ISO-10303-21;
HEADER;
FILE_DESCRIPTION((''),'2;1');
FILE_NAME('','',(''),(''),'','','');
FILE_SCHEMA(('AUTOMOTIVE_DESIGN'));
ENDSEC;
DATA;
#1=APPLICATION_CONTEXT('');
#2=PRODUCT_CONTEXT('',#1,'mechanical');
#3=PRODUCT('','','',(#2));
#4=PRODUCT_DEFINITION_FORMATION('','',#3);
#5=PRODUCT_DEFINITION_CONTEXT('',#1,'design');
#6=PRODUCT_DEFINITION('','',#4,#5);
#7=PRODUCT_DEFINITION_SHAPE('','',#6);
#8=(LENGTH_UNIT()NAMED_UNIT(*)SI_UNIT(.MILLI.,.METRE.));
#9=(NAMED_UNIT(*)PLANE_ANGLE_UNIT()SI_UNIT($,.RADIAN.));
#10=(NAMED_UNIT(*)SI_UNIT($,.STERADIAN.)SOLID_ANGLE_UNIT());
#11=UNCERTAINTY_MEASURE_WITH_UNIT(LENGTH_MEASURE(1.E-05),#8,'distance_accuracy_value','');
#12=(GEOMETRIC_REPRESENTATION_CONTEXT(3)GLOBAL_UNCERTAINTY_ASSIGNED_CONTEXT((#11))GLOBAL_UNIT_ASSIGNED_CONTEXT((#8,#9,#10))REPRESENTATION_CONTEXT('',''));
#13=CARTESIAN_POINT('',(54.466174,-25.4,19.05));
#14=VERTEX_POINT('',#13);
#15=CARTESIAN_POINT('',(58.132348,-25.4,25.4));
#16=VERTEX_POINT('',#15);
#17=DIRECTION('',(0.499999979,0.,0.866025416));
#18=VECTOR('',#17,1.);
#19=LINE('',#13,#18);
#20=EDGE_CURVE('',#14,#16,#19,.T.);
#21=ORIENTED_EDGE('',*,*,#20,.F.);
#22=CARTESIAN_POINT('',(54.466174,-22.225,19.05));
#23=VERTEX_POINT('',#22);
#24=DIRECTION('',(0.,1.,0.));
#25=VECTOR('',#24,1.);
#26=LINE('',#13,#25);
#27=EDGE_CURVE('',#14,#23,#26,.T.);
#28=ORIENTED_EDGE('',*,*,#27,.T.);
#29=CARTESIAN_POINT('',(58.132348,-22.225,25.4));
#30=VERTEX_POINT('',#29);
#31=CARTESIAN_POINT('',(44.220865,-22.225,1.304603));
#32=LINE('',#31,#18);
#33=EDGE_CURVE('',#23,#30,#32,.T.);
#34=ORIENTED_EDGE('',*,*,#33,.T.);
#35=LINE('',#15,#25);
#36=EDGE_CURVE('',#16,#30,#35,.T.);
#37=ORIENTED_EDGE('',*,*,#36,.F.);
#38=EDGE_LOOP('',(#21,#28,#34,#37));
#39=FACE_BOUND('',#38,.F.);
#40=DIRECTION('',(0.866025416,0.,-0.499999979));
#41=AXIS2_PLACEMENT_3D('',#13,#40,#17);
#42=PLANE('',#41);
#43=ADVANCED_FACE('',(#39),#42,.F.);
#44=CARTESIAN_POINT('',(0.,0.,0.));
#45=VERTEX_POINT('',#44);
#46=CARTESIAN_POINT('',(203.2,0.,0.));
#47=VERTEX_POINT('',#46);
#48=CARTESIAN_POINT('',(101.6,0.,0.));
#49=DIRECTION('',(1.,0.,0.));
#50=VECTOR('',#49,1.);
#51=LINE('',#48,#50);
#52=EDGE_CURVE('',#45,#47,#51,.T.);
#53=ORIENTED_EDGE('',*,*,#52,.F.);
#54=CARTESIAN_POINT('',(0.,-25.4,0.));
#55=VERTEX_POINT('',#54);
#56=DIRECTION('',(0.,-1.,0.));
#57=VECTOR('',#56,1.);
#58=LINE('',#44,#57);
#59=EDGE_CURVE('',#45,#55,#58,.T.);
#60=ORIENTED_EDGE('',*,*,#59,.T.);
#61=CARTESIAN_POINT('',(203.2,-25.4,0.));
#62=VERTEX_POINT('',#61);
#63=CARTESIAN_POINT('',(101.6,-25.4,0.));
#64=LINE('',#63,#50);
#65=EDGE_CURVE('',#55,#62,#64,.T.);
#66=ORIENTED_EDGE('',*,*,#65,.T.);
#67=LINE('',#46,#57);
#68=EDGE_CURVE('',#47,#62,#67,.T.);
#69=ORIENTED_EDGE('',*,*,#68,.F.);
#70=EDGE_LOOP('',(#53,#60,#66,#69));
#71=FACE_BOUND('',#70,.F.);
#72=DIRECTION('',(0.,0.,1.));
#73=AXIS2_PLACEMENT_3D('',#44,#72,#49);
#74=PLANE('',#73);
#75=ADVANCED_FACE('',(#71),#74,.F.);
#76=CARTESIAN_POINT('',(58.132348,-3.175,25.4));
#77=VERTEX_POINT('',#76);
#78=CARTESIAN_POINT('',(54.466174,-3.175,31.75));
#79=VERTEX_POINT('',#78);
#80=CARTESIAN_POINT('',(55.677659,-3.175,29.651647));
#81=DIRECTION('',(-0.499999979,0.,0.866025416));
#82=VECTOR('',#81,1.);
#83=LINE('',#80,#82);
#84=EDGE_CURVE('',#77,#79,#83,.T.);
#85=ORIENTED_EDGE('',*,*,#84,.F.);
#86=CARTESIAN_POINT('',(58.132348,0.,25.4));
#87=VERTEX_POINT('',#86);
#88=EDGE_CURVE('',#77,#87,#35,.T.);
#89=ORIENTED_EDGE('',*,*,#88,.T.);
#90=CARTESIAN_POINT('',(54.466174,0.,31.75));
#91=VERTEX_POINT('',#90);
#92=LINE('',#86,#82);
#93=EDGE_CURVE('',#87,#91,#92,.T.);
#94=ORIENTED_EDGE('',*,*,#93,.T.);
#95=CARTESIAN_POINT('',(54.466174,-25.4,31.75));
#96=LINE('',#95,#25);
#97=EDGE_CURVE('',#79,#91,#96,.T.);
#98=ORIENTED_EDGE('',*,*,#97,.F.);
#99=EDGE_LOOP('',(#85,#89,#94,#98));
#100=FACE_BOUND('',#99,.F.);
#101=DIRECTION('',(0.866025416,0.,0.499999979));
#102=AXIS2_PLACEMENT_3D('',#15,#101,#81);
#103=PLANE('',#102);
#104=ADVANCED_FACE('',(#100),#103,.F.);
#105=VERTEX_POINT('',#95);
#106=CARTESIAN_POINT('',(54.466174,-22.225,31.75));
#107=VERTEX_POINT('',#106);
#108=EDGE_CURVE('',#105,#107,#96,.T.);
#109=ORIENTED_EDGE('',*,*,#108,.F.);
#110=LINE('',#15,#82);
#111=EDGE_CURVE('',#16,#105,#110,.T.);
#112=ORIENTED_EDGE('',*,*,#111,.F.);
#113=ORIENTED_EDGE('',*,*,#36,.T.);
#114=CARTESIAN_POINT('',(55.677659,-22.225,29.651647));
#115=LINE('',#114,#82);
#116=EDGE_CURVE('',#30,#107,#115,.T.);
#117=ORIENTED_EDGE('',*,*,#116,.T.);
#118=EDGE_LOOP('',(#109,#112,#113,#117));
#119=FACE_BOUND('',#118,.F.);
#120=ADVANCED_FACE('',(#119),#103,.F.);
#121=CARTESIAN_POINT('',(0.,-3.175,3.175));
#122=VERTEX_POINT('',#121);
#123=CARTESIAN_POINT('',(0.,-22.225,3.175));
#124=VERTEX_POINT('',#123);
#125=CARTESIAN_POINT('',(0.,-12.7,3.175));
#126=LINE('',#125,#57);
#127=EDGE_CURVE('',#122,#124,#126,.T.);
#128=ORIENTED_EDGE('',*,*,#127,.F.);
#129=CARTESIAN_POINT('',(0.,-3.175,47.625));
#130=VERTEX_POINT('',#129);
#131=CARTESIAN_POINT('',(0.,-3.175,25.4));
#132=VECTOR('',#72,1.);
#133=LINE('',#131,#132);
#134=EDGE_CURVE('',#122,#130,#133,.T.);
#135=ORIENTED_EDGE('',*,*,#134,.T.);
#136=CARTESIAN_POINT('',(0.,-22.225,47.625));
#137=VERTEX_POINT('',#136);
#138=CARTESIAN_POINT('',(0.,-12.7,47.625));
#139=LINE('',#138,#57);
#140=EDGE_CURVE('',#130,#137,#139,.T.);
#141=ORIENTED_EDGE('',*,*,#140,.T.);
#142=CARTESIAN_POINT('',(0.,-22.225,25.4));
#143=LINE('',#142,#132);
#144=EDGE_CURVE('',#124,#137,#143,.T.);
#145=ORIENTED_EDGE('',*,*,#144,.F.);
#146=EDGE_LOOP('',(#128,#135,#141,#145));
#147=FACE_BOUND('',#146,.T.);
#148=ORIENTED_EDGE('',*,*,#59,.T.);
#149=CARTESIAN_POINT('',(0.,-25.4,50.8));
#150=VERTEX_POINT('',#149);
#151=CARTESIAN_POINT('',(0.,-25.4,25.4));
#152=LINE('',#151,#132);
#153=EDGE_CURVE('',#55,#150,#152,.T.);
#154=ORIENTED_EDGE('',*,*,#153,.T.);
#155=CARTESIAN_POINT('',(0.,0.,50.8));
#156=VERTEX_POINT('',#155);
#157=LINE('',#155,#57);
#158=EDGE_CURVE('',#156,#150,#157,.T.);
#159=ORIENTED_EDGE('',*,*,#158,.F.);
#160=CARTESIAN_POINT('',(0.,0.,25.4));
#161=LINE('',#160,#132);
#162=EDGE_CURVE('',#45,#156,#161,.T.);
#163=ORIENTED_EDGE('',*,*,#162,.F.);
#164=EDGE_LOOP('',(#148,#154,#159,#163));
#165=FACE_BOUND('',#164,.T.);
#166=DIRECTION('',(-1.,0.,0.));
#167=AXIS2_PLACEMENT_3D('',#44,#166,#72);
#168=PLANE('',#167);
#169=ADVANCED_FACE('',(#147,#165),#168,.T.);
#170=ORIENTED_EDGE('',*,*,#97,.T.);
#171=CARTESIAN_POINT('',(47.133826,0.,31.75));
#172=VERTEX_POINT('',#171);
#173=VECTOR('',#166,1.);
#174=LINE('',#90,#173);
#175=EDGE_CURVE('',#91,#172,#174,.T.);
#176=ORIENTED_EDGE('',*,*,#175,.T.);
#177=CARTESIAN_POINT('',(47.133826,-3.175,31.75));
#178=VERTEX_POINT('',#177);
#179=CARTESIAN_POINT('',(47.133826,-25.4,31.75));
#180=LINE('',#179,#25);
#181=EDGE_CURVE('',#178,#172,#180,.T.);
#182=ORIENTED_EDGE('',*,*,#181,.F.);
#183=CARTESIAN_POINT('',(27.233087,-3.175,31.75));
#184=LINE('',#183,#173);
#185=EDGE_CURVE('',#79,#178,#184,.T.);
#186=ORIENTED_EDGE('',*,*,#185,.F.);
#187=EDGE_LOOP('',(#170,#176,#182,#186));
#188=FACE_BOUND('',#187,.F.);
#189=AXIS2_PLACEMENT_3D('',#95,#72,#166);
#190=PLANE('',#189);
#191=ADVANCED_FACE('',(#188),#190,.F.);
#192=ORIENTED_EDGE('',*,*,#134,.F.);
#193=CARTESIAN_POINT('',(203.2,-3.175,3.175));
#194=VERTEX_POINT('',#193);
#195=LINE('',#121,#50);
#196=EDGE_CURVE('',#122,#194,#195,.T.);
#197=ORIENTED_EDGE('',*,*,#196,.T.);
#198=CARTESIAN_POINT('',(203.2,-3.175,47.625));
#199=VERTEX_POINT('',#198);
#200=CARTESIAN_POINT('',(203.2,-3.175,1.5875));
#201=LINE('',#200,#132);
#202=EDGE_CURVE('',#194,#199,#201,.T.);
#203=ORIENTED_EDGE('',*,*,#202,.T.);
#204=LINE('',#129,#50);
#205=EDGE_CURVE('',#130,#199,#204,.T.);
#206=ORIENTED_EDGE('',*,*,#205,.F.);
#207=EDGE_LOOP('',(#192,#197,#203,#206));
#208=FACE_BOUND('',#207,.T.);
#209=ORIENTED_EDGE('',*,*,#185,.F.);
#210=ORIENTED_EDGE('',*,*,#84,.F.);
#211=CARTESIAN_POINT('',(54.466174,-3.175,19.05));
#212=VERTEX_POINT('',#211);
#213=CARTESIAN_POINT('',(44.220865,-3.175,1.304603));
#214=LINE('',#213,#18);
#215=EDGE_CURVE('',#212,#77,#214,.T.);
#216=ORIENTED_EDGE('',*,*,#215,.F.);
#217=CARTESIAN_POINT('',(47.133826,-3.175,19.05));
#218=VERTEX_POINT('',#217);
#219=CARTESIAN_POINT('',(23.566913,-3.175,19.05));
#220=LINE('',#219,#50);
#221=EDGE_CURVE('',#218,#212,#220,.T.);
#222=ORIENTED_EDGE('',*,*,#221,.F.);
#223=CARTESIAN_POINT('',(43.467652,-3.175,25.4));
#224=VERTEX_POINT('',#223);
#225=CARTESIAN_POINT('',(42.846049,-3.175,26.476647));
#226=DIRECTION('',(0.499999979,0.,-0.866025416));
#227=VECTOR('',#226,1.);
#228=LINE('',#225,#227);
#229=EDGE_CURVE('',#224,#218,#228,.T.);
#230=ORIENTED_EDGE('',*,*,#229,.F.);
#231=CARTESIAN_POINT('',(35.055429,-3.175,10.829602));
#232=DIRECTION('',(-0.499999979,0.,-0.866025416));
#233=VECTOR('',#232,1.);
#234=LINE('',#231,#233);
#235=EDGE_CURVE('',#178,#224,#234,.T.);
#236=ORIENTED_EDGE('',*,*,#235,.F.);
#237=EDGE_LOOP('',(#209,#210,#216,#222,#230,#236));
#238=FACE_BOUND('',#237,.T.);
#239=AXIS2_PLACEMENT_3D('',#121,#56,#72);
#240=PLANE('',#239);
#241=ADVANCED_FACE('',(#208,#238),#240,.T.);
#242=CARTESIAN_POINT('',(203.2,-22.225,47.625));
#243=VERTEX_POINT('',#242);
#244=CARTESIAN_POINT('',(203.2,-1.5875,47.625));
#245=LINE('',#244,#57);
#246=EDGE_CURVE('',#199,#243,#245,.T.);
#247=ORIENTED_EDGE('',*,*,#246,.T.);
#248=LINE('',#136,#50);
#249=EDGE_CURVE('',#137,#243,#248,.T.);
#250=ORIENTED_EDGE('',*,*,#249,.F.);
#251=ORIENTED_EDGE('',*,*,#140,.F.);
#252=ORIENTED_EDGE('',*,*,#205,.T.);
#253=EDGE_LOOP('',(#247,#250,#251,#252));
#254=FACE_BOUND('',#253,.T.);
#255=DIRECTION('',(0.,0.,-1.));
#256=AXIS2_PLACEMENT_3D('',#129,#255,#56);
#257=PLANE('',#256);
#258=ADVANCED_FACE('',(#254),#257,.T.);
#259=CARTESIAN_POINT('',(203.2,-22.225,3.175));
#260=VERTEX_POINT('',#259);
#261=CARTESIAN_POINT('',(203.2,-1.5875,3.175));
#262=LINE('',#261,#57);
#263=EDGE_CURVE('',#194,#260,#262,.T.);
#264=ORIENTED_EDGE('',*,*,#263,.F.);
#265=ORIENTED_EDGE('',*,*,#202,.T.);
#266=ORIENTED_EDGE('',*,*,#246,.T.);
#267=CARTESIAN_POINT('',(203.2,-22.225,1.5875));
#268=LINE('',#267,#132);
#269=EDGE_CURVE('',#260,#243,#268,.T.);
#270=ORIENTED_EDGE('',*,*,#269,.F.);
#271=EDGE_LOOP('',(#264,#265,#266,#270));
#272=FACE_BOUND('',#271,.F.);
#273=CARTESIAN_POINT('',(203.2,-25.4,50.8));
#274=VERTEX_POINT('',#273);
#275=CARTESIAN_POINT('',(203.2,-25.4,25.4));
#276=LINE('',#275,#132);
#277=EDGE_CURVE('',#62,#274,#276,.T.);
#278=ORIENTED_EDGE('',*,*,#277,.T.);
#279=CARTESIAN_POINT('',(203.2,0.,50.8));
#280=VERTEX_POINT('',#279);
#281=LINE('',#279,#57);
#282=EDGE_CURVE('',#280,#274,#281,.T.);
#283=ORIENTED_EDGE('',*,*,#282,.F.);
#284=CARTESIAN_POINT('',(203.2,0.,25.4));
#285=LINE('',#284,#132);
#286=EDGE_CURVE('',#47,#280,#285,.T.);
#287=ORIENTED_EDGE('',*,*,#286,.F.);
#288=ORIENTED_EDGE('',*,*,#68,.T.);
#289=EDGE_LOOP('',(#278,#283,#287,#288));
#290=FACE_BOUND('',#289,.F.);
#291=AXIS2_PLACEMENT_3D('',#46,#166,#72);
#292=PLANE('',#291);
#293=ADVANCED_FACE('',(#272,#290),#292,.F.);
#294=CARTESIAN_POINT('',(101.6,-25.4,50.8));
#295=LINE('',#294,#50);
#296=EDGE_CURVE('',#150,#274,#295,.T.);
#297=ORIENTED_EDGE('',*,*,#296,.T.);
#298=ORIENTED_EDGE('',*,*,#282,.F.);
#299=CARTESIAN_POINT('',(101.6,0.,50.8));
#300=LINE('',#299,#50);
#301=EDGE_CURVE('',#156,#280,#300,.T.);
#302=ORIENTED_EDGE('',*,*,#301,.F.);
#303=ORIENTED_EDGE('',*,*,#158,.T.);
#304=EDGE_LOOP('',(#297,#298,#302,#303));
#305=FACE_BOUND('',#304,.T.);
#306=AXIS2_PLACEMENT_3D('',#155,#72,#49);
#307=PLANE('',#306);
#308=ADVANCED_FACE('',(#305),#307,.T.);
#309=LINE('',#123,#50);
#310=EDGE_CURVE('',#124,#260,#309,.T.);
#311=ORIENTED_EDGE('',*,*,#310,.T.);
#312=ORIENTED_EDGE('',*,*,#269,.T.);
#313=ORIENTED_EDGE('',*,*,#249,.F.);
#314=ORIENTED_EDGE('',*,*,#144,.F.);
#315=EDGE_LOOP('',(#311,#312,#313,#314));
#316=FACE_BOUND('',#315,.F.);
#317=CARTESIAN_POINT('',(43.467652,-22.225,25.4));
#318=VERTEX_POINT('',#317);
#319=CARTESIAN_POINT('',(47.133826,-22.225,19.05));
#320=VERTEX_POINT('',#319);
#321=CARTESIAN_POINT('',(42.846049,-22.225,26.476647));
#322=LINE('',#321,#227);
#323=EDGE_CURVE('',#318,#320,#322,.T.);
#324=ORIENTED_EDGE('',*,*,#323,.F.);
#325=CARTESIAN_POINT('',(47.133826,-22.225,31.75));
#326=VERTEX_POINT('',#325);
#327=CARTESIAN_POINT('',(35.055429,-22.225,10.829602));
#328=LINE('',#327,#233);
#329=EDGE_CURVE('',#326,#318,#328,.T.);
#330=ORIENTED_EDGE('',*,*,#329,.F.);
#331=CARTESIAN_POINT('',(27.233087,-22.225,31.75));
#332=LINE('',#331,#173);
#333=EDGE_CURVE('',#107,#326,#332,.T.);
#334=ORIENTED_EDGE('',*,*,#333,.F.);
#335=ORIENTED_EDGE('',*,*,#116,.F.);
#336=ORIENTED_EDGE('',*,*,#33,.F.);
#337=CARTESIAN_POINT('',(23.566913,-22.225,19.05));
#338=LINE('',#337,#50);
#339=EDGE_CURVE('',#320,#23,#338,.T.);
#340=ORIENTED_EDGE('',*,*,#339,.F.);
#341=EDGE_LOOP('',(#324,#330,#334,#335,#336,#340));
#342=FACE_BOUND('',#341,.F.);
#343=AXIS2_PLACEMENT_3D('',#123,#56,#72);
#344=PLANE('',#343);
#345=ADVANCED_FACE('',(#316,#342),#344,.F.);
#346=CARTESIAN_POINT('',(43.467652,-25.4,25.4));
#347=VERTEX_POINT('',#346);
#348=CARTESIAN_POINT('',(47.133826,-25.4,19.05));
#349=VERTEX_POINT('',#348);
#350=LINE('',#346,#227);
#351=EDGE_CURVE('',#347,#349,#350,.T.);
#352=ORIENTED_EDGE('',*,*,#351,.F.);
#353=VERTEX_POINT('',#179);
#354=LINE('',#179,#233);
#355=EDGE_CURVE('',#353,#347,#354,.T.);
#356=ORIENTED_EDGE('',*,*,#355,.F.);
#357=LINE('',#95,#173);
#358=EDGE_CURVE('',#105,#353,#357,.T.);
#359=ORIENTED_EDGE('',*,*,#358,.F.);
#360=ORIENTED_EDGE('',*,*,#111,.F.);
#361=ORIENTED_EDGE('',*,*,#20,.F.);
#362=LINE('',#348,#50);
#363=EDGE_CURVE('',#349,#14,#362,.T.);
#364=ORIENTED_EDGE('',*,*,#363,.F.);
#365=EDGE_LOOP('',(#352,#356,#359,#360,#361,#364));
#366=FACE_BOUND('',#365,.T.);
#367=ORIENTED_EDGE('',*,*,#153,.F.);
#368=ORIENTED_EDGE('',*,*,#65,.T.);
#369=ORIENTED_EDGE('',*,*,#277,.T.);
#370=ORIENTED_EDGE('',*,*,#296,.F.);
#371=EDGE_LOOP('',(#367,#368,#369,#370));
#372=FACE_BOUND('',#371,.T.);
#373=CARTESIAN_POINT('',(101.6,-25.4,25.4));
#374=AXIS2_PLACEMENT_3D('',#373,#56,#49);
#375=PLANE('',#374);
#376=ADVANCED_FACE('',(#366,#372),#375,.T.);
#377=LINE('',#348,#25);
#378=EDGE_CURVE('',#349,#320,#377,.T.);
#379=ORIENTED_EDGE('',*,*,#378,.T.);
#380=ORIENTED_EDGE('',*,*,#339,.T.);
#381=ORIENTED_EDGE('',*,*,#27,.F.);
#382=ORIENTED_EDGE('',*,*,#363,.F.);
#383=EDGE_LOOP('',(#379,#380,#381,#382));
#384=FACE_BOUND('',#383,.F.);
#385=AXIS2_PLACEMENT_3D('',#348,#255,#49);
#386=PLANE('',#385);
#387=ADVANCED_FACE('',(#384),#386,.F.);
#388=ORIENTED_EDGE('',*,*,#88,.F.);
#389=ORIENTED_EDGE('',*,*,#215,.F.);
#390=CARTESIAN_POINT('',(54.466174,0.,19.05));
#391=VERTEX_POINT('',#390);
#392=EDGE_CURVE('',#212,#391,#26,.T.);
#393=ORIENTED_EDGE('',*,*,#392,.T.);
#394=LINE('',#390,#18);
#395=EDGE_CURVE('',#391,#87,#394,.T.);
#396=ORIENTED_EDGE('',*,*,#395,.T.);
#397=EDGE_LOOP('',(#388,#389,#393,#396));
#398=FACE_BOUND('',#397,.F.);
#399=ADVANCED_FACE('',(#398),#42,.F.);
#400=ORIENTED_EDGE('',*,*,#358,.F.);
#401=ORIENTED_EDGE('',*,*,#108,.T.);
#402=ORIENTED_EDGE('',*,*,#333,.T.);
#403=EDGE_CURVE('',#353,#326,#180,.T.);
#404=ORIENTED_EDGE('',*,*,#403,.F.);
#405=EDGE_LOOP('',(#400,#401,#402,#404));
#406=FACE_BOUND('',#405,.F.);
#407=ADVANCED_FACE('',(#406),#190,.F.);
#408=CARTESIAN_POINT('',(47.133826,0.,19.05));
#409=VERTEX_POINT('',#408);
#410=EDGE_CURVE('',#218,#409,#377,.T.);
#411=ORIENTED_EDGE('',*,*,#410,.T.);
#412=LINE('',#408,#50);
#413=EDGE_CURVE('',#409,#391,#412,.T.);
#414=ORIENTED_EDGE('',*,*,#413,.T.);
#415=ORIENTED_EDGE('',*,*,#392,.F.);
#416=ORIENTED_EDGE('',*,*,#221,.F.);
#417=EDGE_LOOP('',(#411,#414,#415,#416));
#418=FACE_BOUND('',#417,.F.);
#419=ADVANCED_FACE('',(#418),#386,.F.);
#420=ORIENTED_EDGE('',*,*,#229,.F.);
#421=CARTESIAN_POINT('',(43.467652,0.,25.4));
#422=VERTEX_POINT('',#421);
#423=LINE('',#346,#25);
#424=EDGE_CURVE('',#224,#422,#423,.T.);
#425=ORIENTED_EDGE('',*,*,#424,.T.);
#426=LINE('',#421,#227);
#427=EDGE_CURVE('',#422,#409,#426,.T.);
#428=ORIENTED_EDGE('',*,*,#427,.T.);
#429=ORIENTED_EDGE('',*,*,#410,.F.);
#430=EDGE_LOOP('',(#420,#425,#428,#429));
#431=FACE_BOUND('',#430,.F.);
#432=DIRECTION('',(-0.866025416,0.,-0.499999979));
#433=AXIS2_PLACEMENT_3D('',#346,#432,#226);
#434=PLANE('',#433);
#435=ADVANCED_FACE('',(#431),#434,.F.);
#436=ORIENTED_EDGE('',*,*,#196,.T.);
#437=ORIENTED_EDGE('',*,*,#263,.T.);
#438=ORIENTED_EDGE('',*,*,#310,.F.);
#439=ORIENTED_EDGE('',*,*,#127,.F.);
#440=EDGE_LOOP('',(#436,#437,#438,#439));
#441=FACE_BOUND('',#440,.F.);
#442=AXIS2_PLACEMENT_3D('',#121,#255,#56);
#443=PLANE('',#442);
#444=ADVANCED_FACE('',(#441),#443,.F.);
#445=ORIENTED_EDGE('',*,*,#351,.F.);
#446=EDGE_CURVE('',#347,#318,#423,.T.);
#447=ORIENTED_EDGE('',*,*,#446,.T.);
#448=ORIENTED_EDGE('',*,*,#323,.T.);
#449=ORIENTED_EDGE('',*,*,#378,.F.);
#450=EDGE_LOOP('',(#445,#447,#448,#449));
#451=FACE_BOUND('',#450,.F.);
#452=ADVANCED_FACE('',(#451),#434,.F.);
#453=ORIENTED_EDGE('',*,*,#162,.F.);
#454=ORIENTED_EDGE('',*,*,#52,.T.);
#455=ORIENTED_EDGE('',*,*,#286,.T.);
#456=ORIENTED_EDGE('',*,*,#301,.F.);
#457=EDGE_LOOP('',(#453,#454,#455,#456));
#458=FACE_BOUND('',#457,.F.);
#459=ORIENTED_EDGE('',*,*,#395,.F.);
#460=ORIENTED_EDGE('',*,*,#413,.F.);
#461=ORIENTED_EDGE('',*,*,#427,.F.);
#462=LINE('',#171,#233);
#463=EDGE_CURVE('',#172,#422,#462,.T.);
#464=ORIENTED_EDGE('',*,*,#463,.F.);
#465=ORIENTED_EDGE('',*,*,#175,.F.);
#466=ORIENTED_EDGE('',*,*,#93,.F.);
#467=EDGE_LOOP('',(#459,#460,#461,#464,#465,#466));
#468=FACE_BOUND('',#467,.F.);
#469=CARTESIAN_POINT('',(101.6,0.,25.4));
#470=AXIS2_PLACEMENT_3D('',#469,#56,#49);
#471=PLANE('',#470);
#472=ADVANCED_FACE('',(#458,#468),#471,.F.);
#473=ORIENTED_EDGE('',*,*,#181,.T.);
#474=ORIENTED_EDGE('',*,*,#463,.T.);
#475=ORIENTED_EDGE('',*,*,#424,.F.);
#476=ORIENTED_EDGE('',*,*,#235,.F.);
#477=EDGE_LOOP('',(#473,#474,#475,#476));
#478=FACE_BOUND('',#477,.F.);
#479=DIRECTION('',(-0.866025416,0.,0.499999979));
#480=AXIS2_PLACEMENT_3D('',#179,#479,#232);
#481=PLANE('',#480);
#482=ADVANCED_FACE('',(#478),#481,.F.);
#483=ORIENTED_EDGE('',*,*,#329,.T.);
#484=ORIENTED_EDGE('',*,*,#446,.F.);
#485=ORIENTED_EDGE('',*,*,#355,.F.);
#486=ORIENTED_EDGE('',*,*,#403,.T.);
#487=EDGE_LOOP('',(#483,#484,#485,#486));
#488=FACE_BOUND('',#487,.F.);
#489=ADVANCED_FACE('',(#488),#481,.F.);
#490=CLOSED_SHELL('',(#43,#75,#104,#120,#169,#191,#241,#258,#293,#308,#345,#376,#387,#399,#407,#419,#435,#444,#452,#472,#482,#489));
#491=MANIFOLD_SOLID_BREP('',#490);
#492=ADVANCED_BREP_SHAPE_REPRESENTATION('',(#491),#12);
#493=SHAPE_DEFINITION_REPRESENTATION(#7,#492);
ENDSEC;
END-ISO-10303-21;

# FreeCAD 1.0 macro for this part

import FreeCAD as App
import Part
import Sketcher
Q = App.Units.Quantity


def add_polygon(sketch, points):
    """Adds a closed chain of lines whose ends are joined by coincident constraints."""
    first, n = sketch.GeometryCount, len(points)
    for a, b in zip(points, points[1:] + points[:1]):
        sketch.addGeometry(Part.LineSegment(App.Vector(*a, 0), App.Vector(*b, 0)), False)
    for i in range(n):
        sketch.addConstraint(Sketcher.Constraint("Coincident", first + i, 2, first + (i + 1) % n, 1))

doc = App.newDocument("Part")
body = doc.addObject("PartDesign::Body", "Body")

# Sketch on XZ plane
sketch1 = body.newObject("Sketcher::SketchObject", "Sketch")
sketch1.AttachmentSupport = (doc.getObject("XZ_Plane"), [""])
sketch1.MapMode = "FlatFace"
add_polygon(sketch1, [(0, 51), (0, 0), (203, 0), (203, 51)])  # lines 0-3
sketch1.addConstraint([
    Sketcher.Constraint("Vertical", 0),
    Sketcher.Constraint("Horizontal", 1),
    Sketcher.Constraint("Vertical", 2),
    Sketcher.Constraint("Horizontal", 3),
    Sketcher.Constraint("Coincident", 0, 2, -1, 1),
    Sketcher.Constraint("DistanceX", 1, 1, 1, 2, Q("8 in")),
    Sketcher.Constraint("DistanceY", 0, 2, 0, 1, Q("2 in")),
])
pad1 = body.newObject("PartDesign::Pad", "Pad")
pad1.Profile = sketch1
pad1.Length = Q("1 in")

# Sketch on YZ plane
sketch2 = body.newObject("Sketcher::SketchObject", "Sketch001")
sketch2.AttachmentSupport = (doc.getObject("YZ_Plane"), [""])
sketch2.MapMode = "FlatFace"
add_polygon(sketch2, [(-3, 48), (-3, 3), (-22, 3), (-22, 48)])  # lines 0-3
sketch2.addConstraint([
    Sketcher.Constraint("Vertical", 0),
    Sketcher.Constraint("Horizontal", 1),
    Sketcher.Constraint("Vertical", 2),
    Sketcher.Constraint("Horizontal", 3),
    Sketcher.Constraint("DistanceX", 1, 2, 1, 1, Q("0.75 in")),
    Sketcher.Constraint("DistanceY", 0, 2, 0, 1, Q("1.75 in")),
    Sketcher.Constraint("DistanceX", 0, 2, -1, 1, Q("0.125 in")),
    Sketcher.Constraint("DistanceY", -1, 1, 0, 2, Q("0.125 in")),
])
pocket1 = body.newObject("PartDesign::Pocket", "Pocket")
pocket1.Profile = sketch2
pocket1.Length = Q("12 in")
pocket1.Reversed = True

# Sketch on XZ plane
sketch3 = body.newObject("Sketcher::SketchObject", "Sketch002")
sketch3.AttachmentSupport = (doc.getObject("XZ_Plane"), [""])
sketch3.MapMode = "FlatFace"
sketch3.AttachmentOffset = App.Placement(App.Vector(0, 0, 1 * 25.4), App.Rotation())
add_polygon(sketch3, [(54, 32), (47, 32), (43, 25), (47, 19), (54, 19), (58, 25)])  # lines 0-5
sketch3.addConstraint([
    Sketcher.Constraint("Horizontal", 0),
    Sketcher.Constraint("Horizontal", 3),
    Sketcher.Constraint("Parallel", 1, 4),
    Sketcher.Constraint("Parallel", 2, 5),
    Sketcher.Constraint("Horizontal", 1, 2, 4, 2),
    Sketcher.Constraint("Vertical", 0, 2, 2, 2),
    Sketcher.Constraint("Vertical", 3, 2, 5, 2),
    Sketcher.Constraint("DistanceY", -1, 1, 1, 2, Q("1 in")),
    Sketcher.Constraint("Angle", 1, Q("-119.999999 deg")),
    Sketcher.Constraint("DistanceY", 2, 2, 0, 2, Q("0.5 in")),
    Sketcher.Constraint("DistanceX", 0, 2, 0, 1, 7.332348),
    Sketcher.Constraint("DistanceX", -1, 1, 0, 2, 47.133826),
])
pocket2 = body.newObject("PartDesign::Pocket", "Pocket001")
pocket2.Profile = sketch3
pocket2.Length = Q("1 in")

doc.recompute()
